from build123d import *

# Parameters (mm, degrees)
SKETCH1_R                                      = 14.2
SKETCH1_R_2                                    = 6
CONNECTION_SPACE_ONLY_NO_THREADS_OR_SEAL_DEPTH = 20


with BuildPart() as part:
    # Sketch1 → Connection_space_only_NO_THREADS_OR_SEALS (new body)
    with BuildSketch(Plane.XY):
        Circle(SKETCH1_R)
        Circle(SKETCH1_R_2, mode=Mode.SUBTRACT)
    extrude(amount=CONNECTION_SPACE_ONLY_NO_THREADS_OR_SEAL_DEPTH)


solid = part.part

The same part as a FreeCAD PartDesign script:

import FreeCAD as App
import Part
import Sketcher
Q = App.Units.Quantity

doc = App.newDocument("Part")
params = doc.addObject("Spreadsheet::Sheet", "Params")
for row, (alias, value) in enumerate([
    ("sketch1_diameter", "12 mm"),
    ("sketch1_diameter2", "28.4 mm"),
    ("pad1_length", "20 mm"),
], start=1):
    params.set(f"A{row}", alias)
    params.set(f"B{row}", "=" + value)
    params.setAlias(f"B{row}", alias)

body = doc.addObject("PartDesign::Body", "Body")

# Sketch on XY plane
sketch1 = doc.addObject("Sketcher::SketchObject", "Sketch")
body.addObject(sketch1)
sketch1.AttachmentSupport = (doc.XY_Plane, [""])
sketch1.MapMode = "FlatFace"
sketch1.addGeometry(Part.Circle(App.Vector(0, 0, 0), App.Vector(0, 0, 1), 14), False)
sketch1.addGeometry(Part.Circle(App.Vector(0, 0, 0), App.Vector(0, 0, 1), 6), False)
sketch1.addConstraint(Sketcher.Constraint("Coincident", 0, 3, -1, 1))
sketch1.addConstraint(Sketcher.Constraint("Coincident", 1, 3, -1, 1))
sketch1.addConstraint(Sketcher.Constraint("Diameter", 1, Q("12 mm")))
sketch1.addConstraint(Sketcher.Constraint("Diameter", 0, Q("28.4 mm")))
sketch1.setExpression("Constraints[2]", "Params.sketch1_diameter")
sketch1.setExpression("Constraints[3]", "Params.sketch1_diameter2")
pad1 = doc.addObject("PartDesign::Pad", "Pad")
body.addObject(pad1)
pad1.Profile = sketch1
pad1.setExpression("Length", "Params.pad1_length")

doc.recompute()
